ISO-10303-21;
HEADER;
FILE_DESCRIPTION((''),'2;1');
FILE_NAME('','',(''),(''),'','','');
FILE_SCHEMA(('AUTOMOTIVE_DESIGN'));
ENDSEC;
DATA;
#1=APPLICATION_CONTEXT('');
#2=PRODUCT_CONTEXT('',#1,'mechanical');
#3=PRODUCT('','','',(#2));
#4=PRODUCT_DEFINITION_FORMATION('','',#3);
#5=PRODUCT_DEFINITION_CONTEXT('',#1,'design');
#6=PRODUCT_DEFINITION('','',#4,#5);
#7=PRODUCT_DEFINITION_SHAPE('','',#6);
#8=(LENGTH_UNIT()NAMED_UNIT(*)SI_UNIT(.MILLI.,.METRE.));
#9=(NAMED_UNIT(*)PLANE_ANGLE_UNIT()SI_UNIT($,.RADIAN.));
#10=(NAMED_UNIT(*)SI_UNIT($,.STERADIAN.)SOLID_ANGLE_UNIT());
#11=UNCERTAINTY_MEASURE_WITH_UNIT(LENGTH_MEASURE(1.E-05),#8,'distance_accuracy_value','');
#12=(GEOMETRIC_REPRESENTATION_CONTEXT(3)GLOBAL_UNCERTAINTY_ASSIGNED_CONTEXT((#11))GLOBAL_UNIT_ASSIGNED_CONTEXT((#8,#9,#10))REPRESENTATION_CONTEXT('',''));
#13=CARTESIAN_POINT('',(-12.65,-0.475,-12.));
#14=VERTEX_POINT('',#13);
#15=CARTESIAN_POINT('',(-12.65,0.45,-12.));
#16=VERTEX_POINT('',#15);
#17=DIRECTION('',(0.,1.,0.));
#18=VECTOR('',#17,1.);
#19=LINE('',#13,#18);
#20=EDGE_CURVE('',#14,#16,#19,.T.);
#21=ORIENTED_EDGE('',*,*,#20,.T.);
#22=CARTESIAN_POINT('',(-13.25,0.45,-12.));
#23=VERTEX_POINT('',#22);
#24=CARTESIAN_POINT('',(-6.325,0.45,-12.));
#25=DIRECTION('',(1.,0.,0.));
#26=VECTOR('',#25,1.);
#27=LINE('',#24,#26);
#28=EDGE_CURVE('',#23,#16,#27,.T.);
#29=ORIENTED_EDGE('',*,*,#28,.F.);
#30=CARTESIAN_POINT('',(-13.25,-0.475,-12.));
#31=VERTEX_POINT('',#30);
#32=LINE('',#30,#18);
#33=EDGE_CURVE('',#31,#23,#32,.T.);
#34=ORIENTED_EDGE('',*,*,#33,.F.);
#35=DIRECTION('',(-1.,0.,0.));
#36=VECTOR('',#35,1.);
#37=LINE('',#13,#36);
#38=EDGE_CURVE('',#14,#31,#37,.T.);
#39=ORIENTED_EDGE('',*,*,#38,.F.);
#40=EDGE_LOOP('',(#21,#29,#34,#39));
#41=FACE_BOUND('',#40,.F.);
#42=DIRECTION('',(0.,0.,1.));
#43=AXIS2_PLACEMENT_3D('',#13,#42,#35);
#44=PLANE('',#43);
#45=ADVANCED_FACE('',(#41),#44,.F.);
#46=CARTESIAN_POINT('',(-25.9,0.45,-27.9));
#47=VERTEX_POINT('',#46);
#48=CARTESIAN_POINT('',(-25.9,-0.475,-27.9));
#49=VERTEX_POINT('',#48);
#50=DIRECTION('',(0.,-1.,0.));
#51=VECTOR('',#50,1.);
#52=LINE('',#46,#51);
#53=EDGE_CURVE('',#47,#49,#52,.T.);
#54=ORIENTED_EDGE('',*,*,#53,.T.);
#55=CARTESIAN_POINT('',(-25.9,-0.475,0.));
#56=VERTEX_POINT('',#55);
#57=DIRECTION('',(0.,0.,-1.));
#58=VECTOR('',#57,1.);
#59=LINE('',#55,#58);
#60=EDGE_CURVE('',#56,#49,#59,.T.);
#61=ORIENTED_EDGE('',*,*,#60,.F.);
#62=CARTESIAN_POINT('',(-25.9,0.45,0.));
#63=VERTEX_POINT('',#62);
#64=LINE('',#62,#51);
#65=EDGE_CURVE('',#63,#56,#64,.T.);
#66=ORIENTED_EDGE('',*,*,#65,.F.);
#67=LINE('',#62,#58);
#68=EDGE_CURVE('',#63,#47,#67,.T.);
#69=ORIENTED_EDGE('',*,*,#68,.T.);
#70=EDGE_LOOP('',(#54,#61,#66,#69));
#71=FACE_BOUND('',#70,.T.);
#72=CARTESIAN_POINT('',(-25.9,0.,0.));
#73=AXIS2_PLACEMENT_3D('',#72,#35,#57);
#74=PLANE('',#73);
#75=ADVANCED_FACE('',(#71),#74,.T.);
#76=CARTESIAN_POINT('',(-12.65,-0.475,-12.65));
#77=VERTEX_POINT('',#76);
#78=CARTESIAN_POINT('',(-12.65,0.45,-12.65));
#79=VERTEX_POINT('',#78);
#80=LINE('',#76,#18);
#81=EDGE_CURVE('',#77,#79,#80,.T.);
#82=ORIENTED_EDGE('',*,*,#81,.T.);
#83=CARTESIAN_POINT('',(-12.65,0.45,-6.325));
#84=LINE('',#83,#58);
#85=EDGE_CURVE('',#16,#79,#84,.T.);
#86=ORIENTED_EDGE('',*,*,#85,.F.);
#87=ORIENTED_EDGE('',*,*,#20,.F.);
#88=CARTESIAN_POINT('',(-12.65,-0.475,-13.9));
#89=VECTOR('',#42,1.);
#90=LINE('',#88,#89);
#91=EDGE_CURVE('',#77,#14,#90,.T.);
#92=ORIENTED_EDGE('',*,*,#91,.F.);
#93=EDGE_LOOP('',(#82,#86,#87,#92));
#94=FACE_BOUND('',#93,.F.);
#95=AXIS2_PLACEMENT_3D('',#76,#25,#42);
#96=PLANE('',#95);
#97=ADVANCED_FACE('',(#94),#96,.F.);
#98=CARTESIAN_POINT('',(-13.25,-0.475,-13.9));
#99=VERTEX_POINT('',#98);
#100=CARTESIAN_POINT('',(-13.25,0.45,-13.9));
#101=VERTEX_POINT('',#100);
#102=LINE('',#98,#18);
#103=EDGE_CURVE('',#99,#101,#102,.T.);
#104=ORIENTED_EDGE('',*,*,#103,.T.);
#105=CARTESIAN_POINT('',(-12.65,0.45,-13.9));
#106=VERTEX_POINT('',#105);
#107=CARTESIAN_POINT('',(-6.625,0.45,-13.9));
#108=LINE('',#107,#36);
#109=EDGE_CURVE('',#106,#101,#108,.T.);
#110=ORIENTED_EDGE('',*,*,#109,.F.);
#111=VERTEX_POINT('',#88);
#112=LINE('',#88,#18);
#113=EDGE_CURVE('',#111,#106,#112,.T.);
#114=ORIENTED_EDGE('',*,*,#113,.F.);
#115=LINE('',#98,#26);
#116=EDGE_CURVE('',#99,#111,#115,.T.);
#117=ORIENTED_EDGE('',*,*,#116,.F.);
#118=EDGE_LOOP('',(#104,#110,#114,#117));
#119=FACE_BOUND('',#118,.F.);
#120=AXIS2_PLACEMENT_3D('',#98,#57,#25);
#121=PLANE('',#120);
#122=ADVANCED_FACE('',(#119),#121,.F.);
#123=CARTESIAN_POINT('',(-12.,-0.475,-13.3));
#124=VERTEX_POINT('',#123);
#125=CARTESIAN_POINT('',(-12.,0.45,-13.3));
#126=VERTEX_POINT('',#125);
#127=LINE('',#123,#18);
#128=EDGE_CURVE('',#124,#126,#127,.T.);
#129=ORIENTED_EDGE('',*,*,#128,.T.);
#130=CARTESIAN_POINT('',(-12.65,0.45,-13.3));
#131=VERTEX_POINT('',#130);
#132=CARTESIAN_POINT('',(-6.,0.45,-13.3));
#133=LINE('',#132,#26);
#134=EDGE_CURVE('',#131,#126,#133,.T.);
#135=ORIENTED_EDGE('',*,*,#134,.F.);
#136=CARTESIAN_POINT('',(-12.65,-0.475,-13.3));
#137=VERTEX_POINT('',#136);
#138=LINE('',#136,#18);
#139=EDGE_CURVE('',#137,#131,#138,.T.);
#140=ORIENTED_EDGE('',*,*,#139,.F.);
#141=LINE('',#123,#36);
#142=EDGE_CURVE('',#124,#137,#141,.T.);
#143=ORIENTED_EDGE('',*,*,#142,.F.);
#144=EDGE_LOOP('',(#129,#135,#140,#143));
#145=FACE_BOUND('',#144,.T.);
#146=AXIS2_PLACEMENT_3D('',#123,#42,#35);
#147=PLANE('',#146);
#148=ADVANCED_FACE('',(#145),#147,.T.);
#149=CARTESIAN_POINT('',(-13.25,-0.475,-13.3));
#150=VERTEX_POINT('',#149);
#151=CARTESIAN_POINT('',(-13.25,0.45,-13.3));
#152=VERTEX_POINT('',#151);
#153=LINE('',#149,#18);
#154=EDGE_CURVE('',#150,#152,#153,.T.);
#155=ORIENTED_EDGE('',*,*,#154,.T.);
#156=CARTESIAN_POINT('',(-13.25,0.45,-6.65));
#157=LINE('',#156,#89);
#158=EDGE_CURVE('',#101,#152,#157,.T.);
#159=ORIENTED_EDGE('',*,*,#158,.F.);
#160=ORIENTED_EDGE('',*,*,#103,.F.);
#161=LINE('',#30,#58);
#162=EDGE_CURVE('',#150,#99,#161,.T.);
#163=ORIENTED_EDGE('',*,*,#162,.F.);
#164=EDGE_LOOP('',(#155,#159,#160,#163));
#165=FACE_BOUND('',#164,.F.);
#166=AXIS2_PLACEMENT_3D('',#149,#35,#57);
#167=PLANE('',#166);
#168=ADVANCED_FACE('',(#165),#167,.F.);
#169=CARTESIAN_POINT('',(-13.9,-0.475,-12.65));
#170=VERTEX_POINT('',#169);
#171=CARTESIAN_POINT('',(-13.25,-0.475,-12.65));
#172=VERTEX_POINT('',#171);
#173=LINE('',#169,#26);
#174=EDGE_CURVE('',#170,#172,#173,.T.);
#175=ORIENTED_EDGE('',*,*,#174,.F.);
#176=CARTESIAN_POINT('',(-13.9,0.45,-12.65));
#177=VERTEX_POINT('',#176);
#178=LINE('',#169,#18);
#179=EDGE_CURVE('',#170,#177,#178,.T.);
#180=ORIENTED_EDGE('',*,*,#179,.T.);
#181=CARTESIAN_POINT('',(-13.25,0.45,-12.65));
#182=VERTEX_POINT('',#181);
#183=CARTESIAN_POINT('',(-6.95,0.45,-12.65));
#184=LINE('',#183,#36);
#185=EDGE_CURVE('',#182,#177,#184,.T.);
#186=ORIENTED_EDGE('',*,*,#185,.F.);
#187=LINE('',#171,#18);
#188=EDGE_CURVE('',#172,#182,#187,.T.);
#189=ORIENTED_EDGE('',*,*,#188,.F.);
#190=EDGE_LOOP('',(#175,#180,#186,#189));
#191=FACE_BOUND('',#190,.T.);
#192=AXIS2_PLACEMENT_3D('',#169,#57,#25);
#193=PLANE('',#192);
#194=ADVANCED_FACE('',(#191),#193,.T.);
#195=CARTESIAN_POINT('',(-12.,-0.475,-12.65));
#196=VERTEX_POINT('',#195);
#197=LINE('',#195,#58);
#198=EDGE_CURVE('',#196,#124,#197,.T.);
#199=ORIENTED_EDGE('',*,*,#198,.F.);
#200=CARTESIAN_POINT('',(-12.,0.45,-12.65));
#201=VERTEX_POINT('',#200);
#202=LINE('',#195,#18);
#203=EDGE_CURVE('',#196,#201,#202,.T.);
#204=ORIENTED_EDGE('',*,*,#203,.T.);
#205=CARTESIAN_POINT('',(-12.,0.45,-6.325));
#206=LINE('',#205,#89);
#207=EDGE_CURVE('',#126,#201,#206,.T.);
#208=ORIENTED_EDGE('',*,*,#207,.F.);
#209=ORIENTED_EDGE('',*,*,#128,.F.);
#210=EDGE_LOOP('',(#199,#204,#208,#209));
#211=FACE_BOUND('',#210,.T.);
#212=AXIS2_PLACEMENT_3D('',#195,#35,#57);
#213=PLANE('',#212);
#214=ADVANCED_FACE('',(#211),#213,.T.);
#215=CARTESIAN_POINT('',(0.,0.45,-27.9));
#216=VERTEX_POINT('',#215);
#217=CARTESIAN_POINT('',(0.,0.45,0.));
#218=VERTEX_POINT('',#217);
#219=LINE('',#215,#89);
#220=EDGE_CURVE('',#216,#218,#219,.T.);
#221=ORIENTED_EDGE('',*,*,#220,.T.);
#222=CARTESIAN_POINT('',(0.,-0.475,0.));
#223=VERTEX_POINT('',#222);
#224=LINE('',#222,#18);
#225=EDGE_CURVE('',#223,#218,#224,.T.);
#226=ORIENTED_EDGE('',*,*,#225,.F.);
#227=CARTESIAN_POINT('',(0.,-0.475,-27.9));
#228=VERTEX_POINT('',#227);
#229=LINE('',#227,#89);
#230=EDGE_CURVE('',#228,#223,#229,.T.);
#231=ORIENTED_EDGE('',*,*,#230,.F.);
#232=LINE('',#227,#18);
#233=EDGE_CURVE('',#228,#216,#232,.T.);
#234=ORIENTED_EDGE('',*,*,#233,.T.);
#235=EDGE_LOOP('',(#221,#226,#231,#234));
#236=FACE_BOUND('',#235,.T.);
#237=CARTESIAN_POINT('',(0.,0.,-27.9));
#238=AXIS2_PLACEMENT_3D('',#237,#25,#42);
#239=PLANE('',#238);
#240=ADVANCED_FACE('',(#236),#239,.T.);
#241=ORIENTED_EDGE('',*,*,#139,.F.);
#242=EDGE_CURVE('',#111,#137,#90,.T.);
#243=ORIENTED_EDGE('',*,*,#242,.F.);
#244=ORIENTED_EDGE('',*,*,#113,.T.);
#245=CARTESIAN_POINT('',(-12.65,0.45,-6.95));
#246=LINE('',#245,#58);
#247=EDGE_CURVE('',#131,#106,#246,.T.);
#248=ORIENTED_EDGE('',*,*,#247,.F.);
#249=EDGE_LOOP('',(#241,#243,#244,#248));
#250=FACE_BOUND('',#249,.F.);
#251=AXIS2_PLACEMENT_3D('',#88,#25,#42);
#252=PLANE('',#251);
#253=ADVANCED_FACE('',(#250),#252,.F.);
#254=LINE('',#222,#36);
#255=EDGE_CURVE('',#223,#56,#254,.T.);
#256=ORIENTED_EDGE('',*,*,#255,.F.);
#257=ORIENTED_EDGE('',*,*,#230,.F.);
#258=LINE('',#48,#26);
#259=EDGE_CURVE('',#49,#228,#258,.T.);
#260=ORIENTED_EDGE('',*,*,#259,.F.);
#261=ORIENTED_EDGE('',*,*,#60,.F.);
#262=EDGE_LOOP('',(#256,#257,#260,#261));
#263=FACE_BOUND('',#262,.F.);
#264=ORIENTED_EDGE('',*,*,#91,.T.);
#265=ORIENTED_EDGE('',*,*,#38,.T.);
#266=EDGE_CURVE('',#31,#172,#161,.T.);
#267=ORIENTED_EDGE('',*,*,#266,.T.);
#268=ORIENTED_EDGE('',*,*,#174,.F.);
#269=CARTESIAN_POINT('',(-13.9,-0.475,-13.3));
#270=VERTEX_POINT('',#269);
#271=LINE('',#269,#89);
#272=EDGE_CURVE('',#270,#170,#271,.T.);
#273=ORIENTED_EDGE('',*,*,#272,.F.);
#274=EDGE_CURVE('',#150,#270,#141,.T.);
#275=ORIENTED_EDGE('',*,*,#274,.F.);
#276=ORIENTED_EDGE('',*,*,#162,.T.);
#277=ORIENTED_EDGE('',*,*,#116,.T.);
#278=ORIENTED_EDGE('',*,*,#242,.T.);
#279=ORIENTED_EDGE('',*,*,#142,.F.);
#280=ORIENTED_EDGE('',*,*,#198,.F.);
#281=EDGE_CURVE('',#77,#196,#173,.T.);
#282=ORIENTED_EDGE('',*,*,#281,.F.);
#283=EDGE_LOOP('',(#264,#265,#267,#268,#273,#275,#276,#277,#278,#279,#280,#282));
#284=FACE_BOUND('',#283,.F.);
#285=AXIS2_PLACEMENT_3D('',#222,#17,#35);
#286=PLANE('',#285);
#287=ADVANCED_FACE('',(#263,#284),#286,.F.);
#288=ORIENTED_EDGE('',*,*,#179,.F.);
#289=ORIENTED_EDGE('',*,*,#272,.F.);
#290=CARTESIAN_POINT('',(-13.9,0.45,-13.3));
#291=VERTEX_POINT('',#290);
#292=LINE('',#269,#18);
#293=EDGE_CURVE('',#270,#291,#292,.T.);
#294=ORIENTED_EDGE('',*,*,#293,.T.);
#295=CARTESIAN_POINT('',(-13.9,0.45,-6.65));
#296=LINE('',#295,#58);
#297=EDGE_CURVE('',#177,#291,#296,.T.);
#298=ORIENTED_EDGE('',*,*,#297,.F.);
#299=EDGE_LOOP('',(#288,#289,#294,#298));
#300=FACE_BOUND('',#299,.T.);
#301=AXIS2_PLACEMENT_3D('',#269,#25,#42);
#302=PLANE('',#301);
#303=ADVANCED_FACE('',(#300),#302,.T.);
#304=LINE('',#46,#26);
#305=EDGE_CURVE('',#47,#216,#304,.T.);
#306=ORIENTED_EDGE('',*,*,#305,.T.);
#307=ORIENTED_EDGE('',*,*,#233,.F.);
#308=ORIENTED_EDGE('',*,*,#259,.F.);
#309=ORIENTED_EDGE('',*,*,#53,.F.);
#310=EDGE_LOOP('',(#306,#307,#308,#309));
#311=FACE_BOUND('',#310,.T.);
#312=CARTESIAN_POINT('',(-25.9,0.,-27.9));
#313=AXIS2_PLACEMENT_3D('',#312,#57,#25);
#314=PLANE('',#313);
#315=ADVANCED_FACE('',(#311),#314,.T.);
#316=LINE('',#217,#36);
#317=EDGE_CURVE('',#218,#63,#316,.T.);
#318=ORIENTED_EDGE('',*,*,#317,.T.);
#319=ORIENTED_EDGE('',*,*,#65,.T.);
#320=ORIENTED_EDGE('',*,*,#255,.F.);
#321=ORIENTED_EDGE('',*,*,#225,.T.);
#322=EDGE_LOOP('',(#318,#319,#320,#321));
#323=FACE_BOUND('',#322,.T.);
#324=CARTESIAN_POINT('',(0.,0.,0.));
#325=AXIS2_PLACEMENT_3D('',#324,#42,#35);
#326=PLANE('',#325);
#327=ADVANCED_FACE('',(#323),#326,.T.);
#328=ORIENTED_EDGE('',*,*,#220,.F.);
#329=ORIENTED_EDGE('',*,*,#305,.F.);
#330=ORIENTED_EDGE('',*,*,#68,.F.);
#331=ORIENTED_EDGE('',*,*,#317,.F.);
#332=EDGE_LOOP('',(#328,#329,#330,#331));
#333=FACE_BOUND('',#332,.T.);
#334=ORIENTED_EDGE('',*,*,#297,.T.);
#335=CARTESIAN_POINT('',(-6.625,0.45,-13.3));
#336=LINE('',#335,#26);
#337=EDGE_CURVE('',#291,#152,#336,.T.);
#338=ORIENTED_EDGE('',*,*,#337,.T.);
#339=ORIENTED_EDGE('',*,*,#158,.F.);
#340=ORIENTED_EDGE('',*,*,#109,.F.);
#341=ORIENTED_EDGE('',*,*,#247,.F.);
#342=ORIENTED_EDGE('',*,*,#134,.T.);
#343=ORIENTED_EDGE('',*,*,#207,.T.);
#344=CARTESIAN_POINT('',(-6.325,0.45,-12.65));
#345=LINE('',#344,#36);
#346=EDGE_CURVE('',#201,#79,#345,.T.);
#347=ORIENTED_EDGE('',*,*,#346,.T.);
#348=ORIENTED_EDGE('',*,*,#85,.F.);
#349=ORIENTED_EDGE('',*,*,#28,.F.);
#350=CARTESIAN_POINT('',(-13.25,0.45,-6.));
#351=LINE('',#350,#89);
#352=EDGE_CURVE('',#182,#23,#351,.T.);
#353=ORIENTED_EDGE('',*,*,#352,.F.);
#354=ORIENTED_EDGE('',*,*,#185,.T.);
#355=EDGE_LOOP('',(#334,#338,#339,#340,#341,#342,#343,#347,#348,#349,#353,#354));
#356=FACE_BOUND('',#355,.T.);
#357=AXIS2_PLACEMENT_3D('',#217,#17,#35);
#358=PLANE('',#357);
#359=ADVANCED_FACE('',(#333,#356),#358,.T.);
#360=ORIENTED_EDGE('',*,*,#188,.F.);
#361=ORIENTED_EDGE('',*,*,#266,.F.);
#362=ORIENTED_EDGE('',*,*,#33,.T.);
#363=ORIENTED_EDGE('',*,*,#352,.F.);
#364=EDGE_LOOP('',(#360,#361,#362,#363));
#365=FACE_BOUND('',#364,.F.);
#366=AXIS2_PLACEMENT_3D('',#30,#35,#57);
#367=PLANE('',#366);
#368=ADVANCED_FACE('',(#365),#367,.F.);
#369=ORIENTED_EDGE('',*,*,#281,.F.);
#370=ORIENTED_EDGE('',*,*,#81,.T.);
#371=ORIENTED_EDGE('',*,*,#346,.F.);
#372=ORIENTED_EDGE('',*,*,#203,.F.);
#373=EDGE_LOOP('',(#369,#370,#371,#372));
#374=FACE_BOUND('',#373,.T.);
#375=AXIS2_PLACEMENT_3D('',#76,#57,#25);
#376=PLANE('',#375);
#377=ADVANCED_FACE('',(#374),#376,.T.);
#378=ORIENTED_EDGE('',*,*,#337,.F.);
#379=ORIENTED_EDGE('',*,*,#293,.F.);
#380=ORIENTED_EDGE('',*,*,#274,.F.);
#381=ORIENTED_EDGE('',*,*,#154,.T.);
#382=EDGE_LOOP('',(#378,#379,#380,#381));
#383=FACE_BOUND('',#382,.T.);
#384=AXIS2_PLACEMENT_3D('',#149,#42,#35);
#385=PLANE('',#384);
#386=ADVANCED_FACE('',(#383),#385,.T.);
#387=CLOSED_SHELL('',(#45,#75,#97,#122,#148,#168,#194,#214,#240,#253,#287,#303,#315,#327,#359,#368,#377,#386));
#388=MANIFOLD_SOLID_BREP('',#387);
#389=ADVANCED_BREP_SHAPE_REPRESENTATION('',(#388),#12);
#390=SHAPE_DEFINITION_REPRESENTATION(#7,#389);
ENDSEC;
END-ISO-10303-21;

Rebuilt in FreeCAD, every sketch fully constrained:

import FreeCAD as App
import Part
import Sketcher

V = App.Vector
Q = App.Units.Quantity


def add_polygon(sketch, points):
    """Adds a closed chain of lines whose ends are joined by coincident constraints."""
    first, n = sketch.GeometryCount, len(points)
    for a, b in zip(points, points[1:] + points[:1]):
        sketch.addGeometry(Part.LineSegment(App.Vector(*a, 0), App.Vector(*b, 0)), False)
    for i in range(n):
        sketch.addConstraint(Sketcher.Constraint("Coincident", first + i, 2, first + (i + 1) % n, 1))

doc = App.newDocument("Part")
body = doc.addObject("PartDesign::Body", "Body")

# Sketch on XZ plane
sketch1 = doc.addObject("Sketcher::SketchObject", "Sketch")
body.addObject(sketch1)
sketch1.AttachmentSupport = (doc.XZ_Plane, [""])
sketch1.MapMode = "FlatFace"
add_polygon(sketch1, [(-25.9, 0), (0, 0), (0, -27.9), (-25.9, -27.9)])  # lines 0-3
sketch1.addConstraint(Sketcher.Constraint("Horizontal", 0))
sketch1.addConstraint(Sketcher.Constraint("Vertical", 1))
sketch1.addConstraint(Sketcher.Constraint("Horizontal", 2))
sketch1.addConstraint(Sketcher.Constraint("Vertical", 3))
sketch1.addConstraint(Sketcher.Constraint("Coincident", 0, 2, -1, 1))
sketch1.addConstraint(Sketcher.Constraint("DistanceX", 0, 1, 0, 2, Q("25.9 mm")))
sketch1.addConstraint(Sketcher.Constraint("DistanceY", 1, 2, 1, 1, Q("27.9 mm")))
pad1 = doc.addObject("PartDesign::Pad", "Pad")
body.addObject(pad1)
pad1.Profile = sketch1
pad1.Type = "TwoLengths"
pad1.Length = 0.45
pad1.Length2 = 0.475
pad1.Reversed = True

# Sketch on XZ plane
sketch2 = doc.addObject("Sketcher::SketchObject", "Sketch001")
body.addObject(sketch2)
sketch2.AttachmentSupport = (doc.XZ_Plane, [""])
sketch2.MapMode = "FlatFace"
sketch2.AttachmentOffset = App.Placement(V(0, 0, 0.475), App.Rotation())
add_polygon(sketch2, [(-12.65, -12.65), (-12.65, -12), (-13.25, -12), (-13.25, -12.65), (-13.9, -12.65), (-13.9, -13.3), (-13.25, -13.3), (-13.25, -13.9), (-12.65, -13.9), (-12.65, -13.3), (-12, -13.3), (-12, -12.65)])  # lines 0-11
sketch2.addConstraint(Sketcher.Constraint("Vertical", 0))
sketch2.addConstraint(Sketcher.Constraint("Horizontal", 1))
sketch2.addConstraint(Sketcher.Constraint("Vertical", 2))
sketch2.addConstraint(Sketcher.Constraint("Horizontal", 3))
sketch2.addConstraint(Sketcher.Constraint("Vertical", 4))
sketch2.addConstraint(Sketcher.Constraint("Horizontal", 5))
sketch2.addConstraint(Sketcher.Constraint("Vertical", 6))
sketch2.addConstraint(Sketcher.Constraint("Horizontal", 7))
sketch2.addConstraint(Sketcher.Constraint("Vertical", 8))
sketch2.addConstraint(Sketcher.Constraint("Horizontal", 9))
sketch2.addConstraint(Sketcher.Constraint("Vertical", 10))
sketch2.addConstraint(Sketcher.Constraint("Horizontal", 11))
sketch2.addConstraint(Sketcher.Constraint("Horizontal", 5, 2, 8, 2))
sketch2.addConstraint(Sketcher.Constraint("Horizontal", 3, 2, 10, 2))
sketch2.addConstraint(Sketcher.Constraint("Vertical", 2, 2, 5, 2))
sketch2.addConstraint(Sketcher.Constraint("Vertical", 0, 2, 7, 2))
sketch2.addConstraint(Sketcher.Constraint("Equal", 5, 9))
sketch2.addConstraint(Sketcher.Constraint("Equal", 11, 0))
sketch2.addConstraint(Sketcher.Constraint("Equal", 2, 4))
sketch2.addConstraint(Sketcher.Constraint("Equal", 7, 6))
sketch2.addConstraint(Sketcher.Constraint("DistanceX", 1, 2, 1, 1, Q("0.6 mm")))
sketch2.addConstraint(Sketcher.Constraint("DistanceX", 3, 2, 3, 1, Q("0.65 mm")))
sketch2.addConstraint(Sketcher.Constraint("DistanceX", 0, 2, -1, 1, Q("12.65 mm")))
sketch2.addConstraint(Sketcher.Constraint("DistanceY", 2, 2, -1, 1, Q("12.65 mm")))
pocket1 = doc.addObject("PartDesign::Pocket", "Pocket")
body.addObject(pocket1)
pocket1.Profile = sketch2
pocket1.Length = 1000

doc.recompute()
